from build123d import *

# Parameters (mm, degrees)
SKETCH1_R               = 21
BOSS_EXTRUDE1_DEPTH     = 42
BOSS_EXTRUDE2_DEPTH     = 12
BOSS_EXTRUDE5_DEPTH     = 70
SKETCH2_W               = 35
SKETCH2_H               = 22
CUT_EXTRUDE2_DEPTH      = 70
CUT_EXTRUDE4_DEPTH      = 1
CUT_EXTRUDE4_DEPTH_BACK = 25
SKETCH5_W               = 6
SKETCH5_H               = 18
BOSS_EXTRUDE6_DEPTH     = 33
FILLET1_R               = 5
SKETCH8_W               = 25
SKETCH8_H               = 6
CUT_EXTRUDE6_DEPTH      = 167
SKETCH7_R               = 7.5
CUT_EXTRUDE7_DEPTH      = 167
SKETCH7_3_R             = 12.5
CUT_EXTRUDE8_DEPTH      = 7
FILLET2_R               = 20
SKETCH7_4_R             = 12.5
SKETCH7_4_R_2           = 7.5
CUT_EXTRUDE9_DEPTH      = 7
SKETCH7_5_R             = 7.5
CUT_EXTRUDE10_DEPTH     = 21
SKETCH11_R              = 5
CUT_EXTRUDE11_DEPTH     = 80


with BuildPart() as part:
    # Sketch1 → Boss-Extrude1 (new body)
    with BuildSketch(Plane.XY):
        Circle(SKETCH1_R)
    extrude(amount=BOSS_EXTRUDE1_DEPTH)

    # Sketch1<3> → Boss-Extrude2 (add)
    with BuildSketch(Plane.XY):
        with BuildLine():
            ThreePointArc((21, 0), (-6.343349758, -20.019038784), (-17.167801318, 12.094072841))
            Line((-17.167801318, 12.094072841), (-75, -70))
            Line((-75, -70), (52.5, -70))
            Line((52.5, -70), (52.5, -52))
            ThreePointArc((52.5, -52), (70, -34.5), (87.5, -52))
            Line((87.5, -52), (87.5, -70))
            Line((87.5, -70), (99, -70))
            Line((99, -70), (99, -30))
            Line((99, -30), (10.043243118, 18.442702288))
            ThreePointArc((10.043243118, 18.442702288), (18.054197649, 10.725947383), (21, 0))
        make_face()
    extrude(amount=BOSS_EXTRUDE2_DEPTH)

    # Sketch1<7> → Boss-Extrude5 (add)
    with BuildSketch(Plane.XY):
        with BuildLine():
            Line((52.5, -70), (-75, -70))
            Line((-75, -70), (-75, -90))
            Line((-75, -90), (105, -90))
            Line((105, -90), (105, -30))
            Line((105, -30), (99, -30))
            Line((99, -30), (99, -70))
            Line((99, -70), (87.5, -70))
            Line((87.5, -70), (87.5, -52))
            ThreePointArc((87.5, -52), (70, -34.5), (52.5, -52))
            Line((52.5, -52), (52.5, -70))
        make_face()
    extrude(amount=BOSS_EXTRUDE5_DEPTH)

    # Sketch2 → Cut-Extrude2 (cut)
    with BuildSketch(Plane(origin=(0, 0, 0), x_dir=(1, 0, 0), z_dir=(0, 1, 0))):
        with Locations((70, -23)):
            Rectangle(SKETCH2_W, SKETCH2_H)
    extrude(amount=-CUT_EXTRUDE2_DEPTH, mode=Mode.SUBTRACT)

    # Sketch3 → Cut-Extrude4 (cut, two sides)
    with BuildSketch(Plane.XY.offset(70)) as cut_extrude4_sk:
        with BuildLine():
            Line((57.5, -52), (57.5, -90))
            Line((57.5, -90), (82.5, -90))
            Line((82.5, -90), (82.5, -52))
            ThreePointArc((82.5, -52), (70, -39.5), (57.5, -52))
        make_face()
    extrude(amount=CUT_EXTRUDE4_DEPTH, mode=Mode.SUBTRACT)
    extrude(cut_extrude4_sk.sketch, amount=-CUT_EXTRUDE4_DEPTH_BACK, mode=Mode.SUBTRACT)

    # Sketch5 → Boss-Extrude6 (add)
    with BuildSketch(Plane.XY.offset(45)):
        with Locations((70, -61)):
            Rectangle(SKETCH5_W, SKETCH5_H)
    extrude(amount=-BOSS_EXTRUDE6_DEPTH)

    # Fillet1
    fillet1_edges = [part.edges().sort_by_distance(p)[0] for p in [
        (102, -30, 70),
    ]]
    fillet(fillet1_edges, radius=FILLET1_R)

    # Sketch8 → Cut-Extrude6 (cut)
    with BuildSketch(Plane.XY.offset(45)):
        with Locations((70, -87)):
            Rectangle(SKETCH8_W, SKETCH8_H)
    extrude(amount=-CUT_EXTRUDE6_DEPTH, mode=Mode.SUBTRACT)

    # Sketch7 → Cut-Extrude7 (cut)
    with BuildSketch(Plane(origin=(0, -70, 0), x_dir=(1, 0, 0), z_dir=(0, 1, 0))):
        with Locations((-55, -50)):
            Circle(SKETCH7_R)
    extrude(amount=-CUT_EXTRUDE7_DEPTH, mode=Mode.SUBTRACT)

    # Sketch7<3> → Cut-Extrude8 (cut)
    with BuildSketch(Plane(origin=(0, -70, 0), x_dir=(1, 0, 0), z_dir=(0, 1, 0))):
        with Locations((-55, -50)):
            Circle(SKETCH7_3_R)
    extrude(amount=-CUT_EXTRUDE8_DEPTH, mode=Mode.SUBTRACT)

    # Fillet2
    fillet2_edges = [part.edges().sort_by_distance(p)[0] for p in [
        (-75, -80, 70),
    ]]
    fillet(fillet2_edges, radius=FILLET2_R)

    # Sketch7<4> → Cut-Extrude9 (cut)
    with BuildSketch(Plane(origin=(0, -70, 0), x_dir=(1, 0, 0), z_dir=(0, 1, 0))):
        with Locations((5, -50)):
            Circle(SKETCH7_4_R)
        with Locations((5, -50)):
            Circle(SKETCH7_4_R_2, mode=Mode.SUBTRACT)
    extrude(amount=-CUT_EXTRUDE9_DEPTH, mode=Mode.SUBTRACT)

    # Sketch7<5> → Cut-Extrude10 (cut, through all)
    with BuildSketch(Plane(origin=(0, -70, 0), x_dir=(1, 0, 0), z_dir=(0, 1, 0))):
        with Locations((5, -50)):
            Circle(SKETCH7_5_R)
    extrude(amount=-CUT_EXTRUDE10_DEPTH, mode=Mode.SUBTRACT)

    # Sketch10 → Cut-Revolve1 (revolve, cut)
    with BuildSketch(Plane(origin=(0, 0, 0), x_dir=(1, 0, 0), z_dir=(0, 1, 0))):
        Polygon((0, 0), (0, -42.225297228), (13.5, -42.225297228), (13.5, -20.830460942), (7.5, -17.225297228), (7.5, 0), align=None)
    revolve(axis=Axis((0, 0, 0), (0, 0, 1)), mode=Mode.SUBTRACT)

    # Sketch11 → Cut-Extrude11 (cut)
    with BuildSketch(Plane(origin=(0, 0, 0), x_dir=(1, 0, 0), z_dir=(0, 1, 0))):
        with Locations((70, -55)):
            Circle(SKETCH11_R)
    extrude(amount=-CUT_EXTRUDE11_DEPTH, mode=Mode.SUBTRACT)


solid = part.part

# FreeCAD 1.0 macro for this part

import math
import FreeCAD as App
import Part
import Sketcher
Q = App.Units.Quantity


def edges_at(feature, points):
    """Names of the edges that pass closest to the given points."""
    edges = feature.Shape.Edges
    near = lambda p: min(range(len(edges)), key=lambda i: edges[i].distToShape(Part.Vertex(*p))[0])
    return sorted({f"Edge{near(p) + 1}" for p in points})


def add_polygon(sketch, points):
    """Adds a closed chain of lines whose ends are joined by coincident constraints."""
    first, n = sketch.GeometryCount, len(points)
    for a, b in zip(points, points[1:] + points[:1]):
        sketch.addGeometry(Part.LineSegment(App.Vector(*a, 0), App.Vector(*b, 0)), False)
    for i in range(n):
        sketch.addConstraint(Sketcher.Constraint("Coincident", first + i, 2, first + (i + 1) % n, 1))

doc = App.newDocument("Part")
body = doc.addObject("PartDesign::Body", "Body")

# Sketch on XY plane
sketch1 = doc.addObject("Sketcher::SketchObject", "Sketch")
body.addObject(sketch1)
sketch1.AttachmentSupport = (doc.XY_Plane, [""])
sketch1.MapMode = "FlatFace"
sketch1.addGeometry(Part.Circle(App.Vector(0, 0, 0), App.Vector(0, 0, 1), 21), False)
sketch1.addConstraint([
    Sketcher.Constraint("Coincident", 0, 3, -1, 1),
    Sketcher.Constraint("Diameter", 0, Q("42 mm")),
])
pad1 = doc.addObject("PartDesign::Pad", "Pad")
body.addObject(pad1)
pad1.Profile = sketch1
pad1.Length = 42

# Sketch on XY plane
sketch2 = doc.addObject("Sketcher::SketchObject", "Sketch001")
body.addObject(sketch2)
sketch2.AttachmentSupport = (doc.XY_Plane, [""])
sketch2.MapMode = "FlatFace"
sketch2.addGeometry([
    Part.ArcOfCircle(Part.Circle(App.Vector(0, 0, 0), App.Vector(0, 0, 1), 21), math.radians(145), math.radians(360)),  # 0
    Part.LineSegment(App.Vector(-17, 12, 0), App.Vector(-75, -70, 0)),  # 1
    Part.LineSegment(App.Vector(-75, -70, 0), App.Vector(52, -70, 0)),  # 2
    Part.LineSegment(App.Vector(52, -70, 0), App.Vector(52, -52, 0)),  # 3
    Part.ArcOfCircle(Part.Circle(App.Vector(70, -52, 0), App.Vector(0, 0, 1), 18), math.radians(0), math.radians(180)),  # 4
    Part.LineSegment(App.Vector(88, -52, 0), App.Vector(88, -70, 0)),  # 5
    Part.LineSegment(App.Vector(88, -70, 0), App.Vector(99, -70, 0)),  # 6
    Part.LineSegment(App.Vector(99, -70, 0), App.Vector(99, -30, 0)),  # 7
    Part.LineSegment(App.Vector(99, -30, 0), App.Vector(10, 18, 0)),  # 8
    Part.ArcOfCircle(Part.Circle(App.Vector(0, 0, 0), App.Vector(0, 0, 1), 21), math.radians(0), math.radians(61)),  # 9
], False)
sketch2.addConstraint([
    Sketcher.Constraint("Tangent", 0, 1, 1, 1),
    Sketcher.Constraint("Coincident", 1, 2, 2, 1),
    Sketcher.Constraint("Coincident", 2, 2, 3, 1),
    Sketcher.Constraint("Tangent", 3, 2, 4, 2),
    Sketcher.Constraint("Tangent", 4, 1, 5, 1),
    Sketcher.Constraint("Coincident", 5, 2, 6, 1),
    Sketcher.Constraint("Coincident", 6, 2, 7, 1),
    Sketcher.Constraint("Coincident", 7, 2, 8, 1),
    Sketcher.Constraint("Tangent", 8, 2, 9, 2),
    Sketcher.Constraint("Tangent", 9, 1, 0, 2),
    Sketcher.Constraint("Horizontal", 2),
    Sketcher.Constraint("Vertical", 3),
    Sketcher.Constraint("Vertical", 5),
    Sketcher.Constraint("Horizontal", 6),
    Sketcher.Constraint("Vertical", 7),
    Sketcher.Constraint("Coincident", 0, 3, -1, 1),
    Sketcher.Constraint("Equal", 0, 9),
    Sketcher.Constraint("PointOnObject", 9, 1, -1),
    Sketcher.Constraint("Horizontal", 2, 2, 5, 2),
    Sketcher.Constraint("Radius", 0, Q("21 mm")),
    Sketcher.Constraint("Radius", 4, Q("17.5 mm")),
    Sketcher.Constraint("DistanceY", 3, 1, 3, 2, Q("18 mm")),
    Sketcher.Constraint("DistanceY", 7, 1, 7, 2, Q("40 mm")),
    Sketcher.Constraint("DistanceX", 2, 1, 2, 2, Q("127.5 mm")),
    Sketcher.Constraint("DistanceX", 6, 1, 6, 2, Q("11.5 mm")),
    Sketcher.Constraint("DistanceX", -1, 1, 4, 3, Q("70 mm")),
    Sketcher.Constraint("DistanceY", 4, 3, -1, 1, Q("52 mm")),
])
pad2 = doc.addObject("PartDesign::Pad", "Pad001")
body.addObject(pad2)
pad2.Profile = sketch2
pad2.Length = 12

# Sketch on XY plane
sketch3 = doc.addObject("Sketcher::SketchObject", "Sketch002")
body.addObject(sketch3)
sketch3.AttachmentSupport = (doc.XY_Plane, [""])
sketch3.MapMode = "FlatFace"
sketch3.addGeometry([
    Part.LineSegment(App.Vector(52, -70, 0), App.Vector(-75, -70, 0)),  # 0
    Part.LineSegment(App.Vector(-75, -70, 0), App.Vector(-75, -90, 0)),  # 1
    Part.LineSegment(App.Vector(-75, -90, 0), App.Vector(105, -90, 0)),  # 2
    Part.LineSegment(App.Vector(105, -90, 0), App.Vector(105, -30, 0)),  # 3
    Part.LineSegment(App.Vector(105, -30, 0), App.Vector(99, -30, 0)),  # 4
    Part.LineSegment(App.Vector(99, -30, 0), App.Vector(99, -70, 0)),  # 5
    Part.LineSegment(App.Vector(99, -70, 0), App.Vector(88, -70, 0)),  # 6
    Part.LineSegment(App.Vector(88, -70, 0), App.Vector(88, -52, 0)),  # 7
    Part.ArcOfCircle(Part.Circle(App.Vector(70, -52, 0), App.Vector(0, 0, 1), 18), math.radians(0), math.radians(180)),  # 8
    Part.LineSegment(App.Vector(52, -52, 0), App.Vector(52, -70, 0)),  # 9
], False)
sketch3.addConstraint([
    Sketcher.Constraint("Coincident", 0, 2, 1, 1),
    Sketcher.Constraint("Coincident", 1, 2, 2, 1),
    Sketcher.Constraint("Coincident", 2, 2, 3, 1),
    Sketcher.Constraint("Coincident", 3, 2, 4, 1),
    Sketcher.Constraint("Coincident", 4, 2, 5, 1),
    Sketcher.Constraint("Coincident", 5, 2, 6, 1),
    Sketcher.Constraint("Coincident", 6, 2, 7, 1),
    Sketcher.Constraint("Tangent", 7, 2, 8, 1),
    Sketcher.Constraint("Tangent", 8, 2, 9, 1),
    Sketcher.Constraint("Coincident", 9, 2, 0, 1),
    Sketcher.Constraint("Horizontal", 0),
    Sketcher.Constraint("Vertical", 1),
    Sketcher.Constraint("Horizontal", 2),
    Sketcher.Constraint("Vertical", 3),
    Sketcher.Constraint("Horizontal", 4),
    Sketcher.Constraint("Vertical", 5),
    Sketcher.Constraint("Horizontal", 6),
    Sketcher.Constraint("Vertical", 7),
    Sketcher.Constraint("Vertical", 9),
    Sketcher.Constraint("Horizontal", 0, 2, 5, 2),
    Sketcher.Constraint("Radius", 8, Q("17.5 mm")),
    Sketcher.Constraint("DistanceX", 2, 1, 2, 2, Q("180 mm")),
    Sketcher.Constraint("DistanceX", 4, 2, 4, 1, Q("6 mm")),
    Sketcher.Constraint("DistanceY", 1, 2, 1, 1, Q("20 mm")),
    Sketcher.Constraint("DistanceY", 3, 1, 3, 2, Q("60 mm")),
    Sketcher.Constraint("DistanceY", 7, 1, 7, 2, Q("18 mm")),
    Sketcher.Constraint("DistanceX", 0, 2, 0, 1, Q("127.5 mm")),
    Sketcher.Constraint("DistanceX", -1, 1, 8, 3, Q("70 mm")),
    Sketcher.Constraint("DistanceY", 8, 3, -1, 1, Q("52 mm")),
])
pad3 = doc.addObject("PartDesign::Pad", "Pad002")
body.addObject(pad3)
pad3.Profile = sketch3
pad3.Length = 70

# Sketch on XZ plane
sketch4 = doc.addObject("Sketcher::SketchObject", "Sketch003")
body.addObject(sketch4)
sketch4.AttachmentSupport = (doc.XZ_Plane, [""])
sketch4.MapMode = "FlatFace"
add_polygon(sketch4, [(52, 12), (52, 34), (88, 34), (88, 12)])  # lines 0-3
sketch4.addConstraint([
    Sketcher.Constraint("Vertical", 0),
    Sketcher.Constraint("Horizontal", 1),
    Sketcher.Constraint("Vertical", 2),
    Sketcher.Constraint("Horizontal", 3),
    Sketcher.Constraint("DistanceX", 1, 1, 1, 2, Q("35 mm")),
    Sketcher.Constraint("DistanceY", 0, 1, 0, 2, Q("22 mm")),
    Sketcher.Constraint("DistanceY", -1, 1, 0, 2, Q("34 mm")),
    Sketcher.Constraint("DistanceX", -1, 1, 0, 2, Q("52.5 mm")),
])
pocket1 = doc.addObject("PartDesign::Pocket", "Pocket")
body.addObject(pocket1)
pocket1.Profile = sketch4
pocket1.Length = 70
pocket1.Reversed = True

# Sketch on XY plane
sketch5 = doc.addObject("Sketcher::SketchObject", "Sketch004")
body.addObject(sketch5)
sketch5.AttachmentSupport = (doc.XY_Plane, [""])
sketch5.MapMode = "FlatFace"
sketch5.AttachmentOffset = App.Placement(App.Vector(0, 0, 70), App.Rotation())
sketch5.addGeometry([
    Part.LineSegment(App.Vector(58, -52, 0), App.Vector(58, -90, 0)),
    Part.LineSegment(App.Vector(58, -90, 0), App.Vector(82, -90, 0)),
    Part.LineSegment(App.Vector(82, -90, 0), App.Vector(82, -52, 0)),
    Part.ArcOfCircle(Part.Circle(App.Vector(70, -52, 0), App.Vector(0, 0, 1), 12), math.radians(0), math.radians(180)),
], False)
sketch5.addConstraint([
    Sketcher.Constraint("Coincident", 0, 2, 1, 1),
    Sketcher.Constraint("Coincident", 1, 2, 2, 1),
    Sketcher.Constraint("Tangent", 2, 2, 3, 1),
    Sketcher.Constraint("Tangent", 3, 2, 0, 1),
    Sketcher.Constraint("Vertical", 0),
    Sketcher.Constraint("Horizontal", 1),
    Sketcher.Constraint("Vertical", 2),
    Sketcher.Constraint("Radius", 3, Q("12.5 mm")),
    Sketcher.Constraint("DistanceY", 0, 2, 0, 1, Q("38 mm")),
    Sketcher.Constraint("DistanceX", -1, 1, 3, 3, Q("70 mm")),
    Sketcher.Constraint("DistanceY", 3, 3, -1, 1, Q("52 mm")),
])
pocket2 = doc.addObject("PartDesign::Pocket", "Pocket001")
body.addObject(pocket2)
pocket2.Profile = sketch5
pocket2.Type = "TwoLengths"
pocket2.Length = 1
pocket2.Length2 = 25
pocket2.Reversed = True

# Sketch on XY plane
sketch6 = doc.addObject("Sketcher::SketchObject", "Sketch005")
body.addObject(sketch6)
sketch6.AttachmentSupport = (doc.XY_Plane, [""])
sketch6.MapMode = "FlatFace"
sketch6.AttachmentOffset = App.Placement(App.Vector(0, 0, 45), App.Rotation())
add_polygon(sketch6, [(67, -52), (67, -70), (73, -70), (73, -52)])  # lines 0-3
sketch6.addConstraint([
    Sketcher.Constraint("Vertical", 0),
    Sketcher.Constraint("Horizontal", 1),
    Sketcher.Constraint("Vertical", 2),
    Sketcher.Constraint("Horizontal", 3),
    Sketcher.Constraint("DistanceX", 1, 1, 1, 2, Q("6 mm")),
    Sketcher.Constraint("DistanceY", 0, 2, 0, 1, Q("18 mm")),
    Sketcher.Constraint("DistanceX", -1, 1, 0, 2, Q("67 mm")),
    Sketcher.Constraint("DistanceY", 0, 2, -1, 1, Q("70 mm")),
])
pad4 = doc.addObject("PartDesign::Pad", "Pad003")
body.addObject(pad4)
pad4.Profile = sketch6
pad4.Length = 33
pad4.Reversed = True
doc.recompute()

fillet = doc.addObject("PartDesign::Fillet", "Fillet")
body.addObject(fillet)
fillet.Base = (pad4, edges_at(pad4, [(102, -30, 70)]))
fillet.Radius = 5

# Sketch on XY plane
sketch7 = doc.addObject("Sketcher::SketchObject", "Sketch006")
body.addObject(sketch7)
sketch7.AttachmentSupport = (doc.XY_Plane, [""])
sketch7.MapMode = "FlatFace"
sketch7.AttachmentOffset = App.Placement(App.Vector(0, 0, 45), App.Rotation())
add_polygon(sketch7, [(58, -84), (58, -90), (82, -90), (82, -84)])  # lines 0-3
sketch7.addConstraint([
    Sketcher.Constraint("Vertical", 0),
    Sketcher.Constraint("Horizontal", 1),
    Sketcher.Constraint("Vertical", 2),
    Sketcher.Constraint("Horizontal", 3),
    Sketcher.Constraint("DistanceX", 1, 1, 1, 2, Q("25 mm")),
    Sketcher.Constraint("DistanceY", 0, 2, 0, 1, Q("6 mm")),
    Sketcher.Constraint("DistanceY", 0, 2, -1, 1, Q("90 mm")),
    Sketcher.Constraint("DistanceX", -1, 1, 0, 2, Q("57.5 mm")),
])
pocket3 = doc.addObject("PartDesign::Pocket", "Pocket002")
body.addObject(pocket3)
pocket3.Profile = sketch7
pocket3.Length = 167

# Sketch on XZ plane
sketch8 = doc.addObject("Sketcher::SketchObject", "Sketch007")
body.addObject(sketch8)
sketch8.AttachmentSupport = (doc.XZ_Plane, [""])
sketch8.MapMode = "FlatFace"
sketch8.AttachmentOffset = App.Placement(App.Vector(0, 0, 70), App.Rotation())
sketch8.addGeometry(Part.Circle(App.Vector(-55, 50, 0), App.Vector(0, 0, 1), 8), False)
sketch8.addConstraint([
    Sketcher.Constraint("Diameter", 0, Q("15 mm")),
    Sketcher.Constraint("DistanceX", 0, 3, -1, 1, Q("55 mm")),
    Sketcher.Constraint("DistanceY", -1, 1, 0, 3, Q("50 mm")),
])
pocket4 = doc.addObject("PartDesign::Pocket", "Pocket003")
body.addObject(pocket4)
pocket4.Profile = sketch8
pocket4.Length = 167
pocket4.Reversed = True

# Sketch on XZ plane
sketch9 = doc.addObject("Sketcher::SketchObject", "Sketch008")
body.addObject(sketch9)
sketch9.AttachmentSupport = (doc.XZ_Plane, [""])
sketch9.MapMode = "FlatFace"
sketch9.AttachmentOffset = App.Placement(App.Vector(0, 0, 70), App.Rotation())
sketch9.addGeometry(Part.Circle(App.Vector(-55, 50, 0), App.Vector(0, 0, 1), 12), False)
sketch9.addConstraint([
    Sketcher.Constraint("Diameter", 0, Q("25 mm")),
    Sketcher.Constraint("DistanceX", 0, 3, -1, 1, Q("55 mm")),
    Sketcher.Constraint("DistanceY", -1, 1, 0, 3, Q("50 mm")),
])
pocket5 = doc.addObject("PartDesign::Pocket", "Pocket004")
body.addObject(pocket5)
pocket5.Profile = sketch9
pocket5.Length = 7
pocket5.Reversed = True
doc.recompute()

fillet2 = doc.addObject("PartDesign::Fillet", "Fillet001")
body.addObject(fillet2)
fillet2.Base = (pocket5, edges_at(pocket5, [(-75, -80, 70)]))
fillet2.Radius = 20

# Sketch on XZ plane
sketch10 = doc.addObject("Sketcher::SketchObject", "Sketch009")
body.addObject(sketch10)
sketch10.AttachmentSupport = (doc.XZ_Plane, [""])
sketch10.MapMode = "FlatFace"
sketch10.AttachmentOffset = App.Placement(App.Vector(0, 0, 70), App.Rotation())
sketch10.addGeometry([
    Part.Circle(App.Vector(5, 50, 0), App.Vector(0, 0, 1), 12),
    Part.Circle(App.Vector(5, 50, 0), App.Vector(0, 0, 1), 8),
], False)
sketch10.addConstraint([
    Sketcher.Constraint("Coincident", 1, 3, 0, 3),
    Sketcher.Constraint("Diameter", 0, Q("25 mm")),
    Sketcher.Constraint("Diameter", 1, Q("15 mm")),
    Sketcher.Constraint("DistanceX", -1, 1, 0, 3, Q("5 mm")),
    Sketcher.Constraint("DistanceY", -1, 1, 0, 3, Q("50 mm")),
])
pocket6 = doc.addObject("PartDesign::Pocket", "Pocket005")
body.addObject(pocket6)
pocket6.Profile = sketch10
pocket6.Length = 7
pocket6.Reversed = True

# Sketch on XZ plane
sketch11 = doc.addObject("Sketcher::SketchObject", "Sketch010")
body.addObject(sketch11)
sketch11.AttachmentSupport = (doc.XZ_Plane, [""])
sketch11.MapMode = "FlatFace"
sketch11.AttachmentOffset = App.Placement(App.Vector(0, 0, 70), App.Rotation())
sketch11.addGeometry(Part.Circle(App.Vector(5, 50, 0), App.Vector(0, 0, 1), 8), False)
sketch11.addConstraint([
    Sketcher.Constraint("Diameter", 0, Q("15 mm")),
    Sketcher.Constraint("DistanceX", -1, 1, 0, 3, Q("5 mm")),
    Sketcher.Constraint("DistanceY", -1, 1, 0, 3, Q("50 mm")),
])
pocket7 = doc.addObject("PartDesign::Pocket", "Pocket006")
body.addObject(pocket7)
pocket7.Profile = sketch11
pocket7.Type = "ThroughAll"
pocket7.Reversed = True

# Sketch on XZ plane
sketch12 = doc.addObject("Sketcher::SketchObject", "Sketch011")
body.addObject(sketch12)
sketch12.AttachmentSupport = (doc.XZ_Plane, [""])
sketch12.MapMode = "FlatFace"
add_polygon(sketch12, [(0, 0), (0, 42), (14, 42), (14, 21), (8, 17), (8, 0)])  # lines 0-5
sketch12.addConstraint([
    Sketcher.Constraint("Vertical", 0),
    Sketcher.Constraint("Horizontal", 1),
    Sketcher.Constraint("Vertical", 2),
    Sketcher.Constraint("Vertical", 4),
    Sketcher.Constraint("Horizontal", 5),
    Sketcher.Constraint("Coincident", 5, 2, -1, 1),
    Sketcher.Constraint("Angle", 3, Q("-149 deg")),
    Sketcher.Constraint("DistanceX", 1, 1, 1, 2, Q("13.5 mm")),
    Sketcher.Constraint("DistanceX", 5, 2, 5, 1, Q("7.5 mm")),
    Sketcher.Constraint("DistanceY", 3, 2, 1, 2, Q("25 mm")),
    Sketcher.Constraint("DistanceY", 0, 1, 0, 2, Q("42.225297 mm")),
])
groove = doc.addObject("PartDesign::Groove", "Groove")
body.addObject(groove)
groove.Profile = sketch12
groove.ReferenceAxis = (sketch12, ["V_Axis"])
groove.Angle = 360

# Sketch on XZ plane
sketch13 = doc.addObject("Sketcher::SketchObject", "Sketch012")
body.addObject(sketch13)
sketch13.AttachmentSupport = (doc.XZ_Plane, [""])
sketch13.MapMode = "FlatFace"
sketch13.addGeometry(Part.Circle(App.Vector(70, 55, 0), App.Vector(0, 0, 1), 5), False)
sketch13.addConstraint([
    Sketcher.Constraint("Diameter", 0, Q("10 mm")),
    Sketcher.Constraint("DistanceX", -1, 1, 0, 3, Q("70 mm")),
    Sketcher.Constraint("DistanceY", -1, 1, 0, 3, Q("55 mm")),
])
pocket8 = doc.addObject("PartDesign::Pocket", "Pocket007")
body.addObject(pocket8)
pocket8.Profile = sketch13
pocket8.Length = 80
pocket8.Reversed = True

doc.recompute()
